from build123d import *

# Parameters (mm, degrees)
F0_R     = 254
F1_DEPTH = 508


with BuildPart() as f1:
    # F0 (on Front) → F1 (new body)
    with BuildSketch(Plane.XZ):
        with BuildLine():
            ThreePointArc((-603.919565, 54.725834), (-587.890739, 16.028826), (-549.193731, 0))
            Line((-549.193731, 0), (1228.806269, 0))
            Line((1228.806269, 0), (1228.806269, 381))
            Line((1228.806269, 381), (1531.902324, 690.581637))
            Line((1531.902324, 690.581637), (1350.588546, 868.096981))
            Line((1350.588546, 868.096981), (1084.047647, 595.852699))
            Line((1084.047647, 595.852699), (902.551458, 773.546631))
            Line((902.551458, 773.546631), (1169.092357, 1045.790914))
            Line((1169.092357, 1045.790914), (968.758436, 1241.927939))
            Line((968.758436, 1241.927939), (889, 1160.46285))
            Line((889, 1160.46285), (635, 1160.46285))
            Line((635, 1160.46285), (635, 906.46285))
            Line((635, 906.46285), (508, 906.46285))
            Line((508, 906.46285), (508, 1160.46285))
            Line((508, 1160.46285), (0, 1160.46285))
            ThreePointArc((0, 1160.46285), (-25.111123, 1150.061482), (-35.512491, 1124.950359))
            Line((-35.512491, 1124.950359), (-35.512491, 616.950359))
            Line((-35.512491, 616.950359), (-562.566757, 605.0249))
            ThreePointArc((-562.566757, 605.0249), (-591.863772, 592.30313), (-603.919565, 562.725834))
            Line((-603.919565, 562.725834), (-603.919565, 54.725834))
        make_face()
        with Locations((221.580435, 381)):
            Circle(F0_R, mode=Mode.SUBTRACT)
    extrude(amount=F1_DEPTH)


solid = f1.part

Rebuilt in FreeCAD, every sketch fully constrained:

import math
import FreeCAD as App
import Part
import Sketcher

V = App.Vector
Q = App.Units.Quantity

doc = App.newDocument("Part")
body = doc.addObject("PartDesign::Body", "Body")

sketch1 = body.newObject("Sketcher::SketchObject", "Sketch")
sketch1.AttachmentSupport = (doc.getObject("XZ_Plane"), [""])
sketch1.MapMode = "FlatFace"
sketch1.addGeometry(Part.ArcOfCircle(Part.Circle(V(-549.19373, 54.725835, 0), V(0, 0, 1), 54.725835), math.radians(-179.999999), math.radians(-90.000001)), False)
sketch1.addGeometry(Part.LineSegment(V(-549.193731, 0, 0), V(1228.806269, 0, 0)), False)
sketch1.addGeometry(Part.LineSegment(V(1228.806269, 0, 0), V(1228.806269, 381, 0)), False)
sketch1.addGeometry(Part.LineSegment(V(1228.806269, 381, 0), V(1531.902324, 690.581637, 0)), False)
sketch1.addGeometry(Part.LineSegment(V(1531.902324, 690.581637, 0), V(1350.588546, 868.096981, 0)), False)
sketch1.addGeometry(Part.LineSegment(V(1350.588546, 868.096981, 0), V(1084.047647, 595.852699, 0)), False)
sketch1.addGeometry(Part.LineSegment(V(1084.047647, 595.852699, 0), V(902.551458, 773.546631, 0)), False)
sketch1.addGeometry(Part.LineSegment(V(902.551458, 773.546631, 0), V(1169.092357, 1045.790914, 0)), False)
sketch1.addGeometry(Part.LineSegment(V(1169.092357, 1045.790914, 0), V(968.758436, 1241.927939, 0)), False)
sketch1.addGeometry(Part.LineSegment(V(968.758436, 1241.927939, 0), V(889, 1160.46285, 0)), False)
sketch1.addGeometry(Part.LineSegment(V(889, 1160.46285, 0), V(635, 1160.46285, 0)), False)
sketch1.addGeometry(Part.LineSegment(V(635, 1160.46285, 0), V(635, 906.46285, 0)), False)
sketch1.addGeometry(Part.LineSegment(V(635, 906.46285, 0), V(508, 906.46285, 0)), False)
sketch1.addGeometry(Part.LineSegment(V(508, 906.46285, 0), V(508, 1160.46285, 0)), False)
sketch1.addGeometry(Part.LineSegment(V(508, 1160.46285, 0), V(0, 1160.46285, 0)), False)
sketch1.addGeometry(Part.ArcOfCircle(Part.Circle(V(0.000001, 1124.950358, 0), V(0, 0, 1), 35.512492), math.radians(90.000001), math.radians(179.999999)), False)
sketch1.addGeometry(Part.LineSegment(V(-35.512491, 1124.950359, 0), V(-35.512491, 616.950359, 0)), False)
sketch1.addGeometry(Part.LineSegment(V(-35.512491, 616.950359, 0), V(-562.566757, 605.0249, 0)), False)
sketch1.addGeometry(Part.ArcOfCircle(Part.Circle(V(-561.609672, 562.725833, 0), V(0, 0, 1), 42.309893), math.radians(91.296189), math.radians(179.999999)), False)
sketch1.addGeometry(Part.LineSegment(V(-603.919565, 562.725834, 0), V(-603.919565, 54.725834, 0)), False)
sketch1.addGeometry(Part.Circle(V(221.580435, 381, 0), V(0, 0, 1), 254), False)
sketch1.addConstraint(Sketcher.Constraint("Tangent", 0, 2, 1, 1))
sketch1.addConstraint(Sketcher.Constraint("Coincident", 1, 2, 2, 1))
sketch1.addConstraint(Sketcher.Constraint("Coincident", 2, 2, 3, 1))
sketch1.addConstraint(Sketcher.Constraint("Coincident", 3, 2, 4, 1))
sketch1.addConstraint(Sketcher.Constraint("Coincident", 4, 2, 5, 1))
sketch1.addConstraint(Sketcher.Constraint("Coincident", 5, 2, 6, 1))
sketch1.addConstraint(Sketcher.Constraint("Coincident", 6, 2, 7, 1))
sketch1.addConstraint(Sketcher.Constraint("Coincident", 7, 2, 8, 1))
sketch1.addConstraint(Sketcher.Constraint("Coincident", 8, 2, 9, 1))
sketch1.addConstraint(Sketcher.Constraint("Coincident", 9, 2, 10, 1))
sketch1.addConstraint(Sketcher.Constraint("Coincident", 10, 2, 11, 1))
sketch1.addConstraint(Sketcher.Constraint("Coincident", 11, 2, 12, 1))
sketch1.addConstraint(Sketcher.Constraint("Coincident", 12, 2, 13, 1))
sketch1.addConstraint(Sketcher.Constraint("Coincident", 13, 2, 14, 1))
sketch1.addConstraint(Sketcher.Constraint("Tangent", 14, 2, 15, 1))
sketch1.addConstraint(Sketcher.Constraint("Tangent", 15, 2, 16, 1))
sketch1.addConstraint(Sketcher.Constraint("Coincident", 16, 2, 17, 1))
sketch1.addConstraint(Sketcher.Constraint("Tangent", 17, 2, 18, 1))
sketch1.addConstraint(Sketcher.Constraint("Tangent", 18, 2, 19, 1))
sketch1.addConstraint(Sketcher.Constraint("Tangent", 19, 2, 0, 1))
sketch1.addConstraint(Sketcher.Constraint("Horizontal", 1))
sketch1.addConstraint(Sketcher.Constraint("Vertical", 2))
sketch1.addConstraint(Sketcher.Constraint("Horizontal", 10))
sketch1.addConstraint(Sketcher.Constraint("Vertical", 11))
sketch1.addConstraint(Sketcher.Constraint("Horizontal", 12))
sketch1.addConstraint(Sketcher.Constraint("Vertical", 13))
sketch1.addConstraint(Sketcher.Constraint("Horizontal", 14))
sketch1.addConstraint(Sketcher.Constraint("Vertical", 16))
sketch1.addConstraint(Sketcher.Constraint("Vertical", 19))
sketch1.addConstraint(Sketcher.Constraint("PointOnObject", 15, 3, -2))
sketch1.addConstraint(Sketcher.Constraint("PointOnObject", 0, 2, -1))
sketch1.addConstraint(Sketcher.Constraint("Perpendicular", 3, 4))
sketch1.addConstraint(Sketcher.Constraint("Perpendicular", 4, 5))
sketch1.addConstraint(Sketcher.Constraint("Perpendicular", 5, 6))
sketch1.addConstraint(Sketcher.Constraint("Perpendicular", 6, 7))
sketch1.addConstraint(Sketcher.Constraint("Perpendicular", 7, 8))
sketch1.addConstraint(Sketcher.Constraint("Perpendicular", 8, 9))
sketch1.addConstraint(Sketcher.Constraint("Horizontal", 20, 3, 2, 2))
sketch1.addConstraint(Sketcher.Constraint("Horizontal", 10, 2, 13, 2))
sketch1.addConstraint(Sketcher.Constraint("Equal", 10, 11))
sketch1.addConstraint(Sketcher.Constraint("Equal", 14, 16))
sketch1.addConstraint(Sketcher.Constraint("Equal", 16, 19))
sketch1.addConstraint(Sketcher.Constraint("Equal", 5, 7))
sketch1.addConstraint(Sketcher.Constraint("Diameter", 20, Q("20 in")))
sketch1.addConstraint(Sketcher.Constraint("DistanceX", 1, 1, 1, 2, Q("70 in")))
sketch1.addConstraint(Sketcher.Constraint("DistanceX", 10, 2, 10, 1, Q("10 in")))
sketch1.addConstraint(Sketcher.Constraint("DistanceX", 12, 2, 12, 1, Q("5 in")))
sketch1.addConstraint(Sketcher.Constraint("DistanceX", 14, 2, 14, 1, Q("20 in")))
sketch1.addConstraint(Sketcher.Constraint("DistanceY", 2, 1, 2, 2, Q("15 in")))
sketch1.addConstraint(Sketcher.Constraint("Distance", 5, Q("15 in")))
sketch1.addConstraint(Sketcher.Constraint("Distance", 6, Q("10 in")))
sketch1.addConstraint(Sketcher.Constraint("Radius", 15, 35.512492))
sketch1.addConstraint(Sketcher.Constraint("Radius", 0, 54.725835))
sketch1.addConstraint(Sketcher.Constraint("Radius", 18, 42.309893))
sketch1.addConstraint(Sketcher.Constraint("Distance", 8, 280.363001))
sketch1.addConstraint(Sketcher.Constraint("DistanceY", -1, 1, 5, 2, 595.852699))
sketch1.addConstraint(Sketcher.Constraint("DistanceX", 5, 2, 4, 2, 266.540899))
sketch1.addConstraint(Sketcher.Constraint("DistanceY", 3, 2, 8, 2, 551.346302))
sketch1.addConstraint(Sketcher.Constraint("DistanceX", 0, 3, -1, 1, 549.19373))
sketch1.addConstraint(Sketcher.Constraint("DistanceX", 20, 3, 3, 2, 1310.321889))
pad1 = body.newObject("PartDesign::Pad", "Pad")
pad1.Profile = sketch1
pad1.Length = Q("20 in")

doc.recompute()
